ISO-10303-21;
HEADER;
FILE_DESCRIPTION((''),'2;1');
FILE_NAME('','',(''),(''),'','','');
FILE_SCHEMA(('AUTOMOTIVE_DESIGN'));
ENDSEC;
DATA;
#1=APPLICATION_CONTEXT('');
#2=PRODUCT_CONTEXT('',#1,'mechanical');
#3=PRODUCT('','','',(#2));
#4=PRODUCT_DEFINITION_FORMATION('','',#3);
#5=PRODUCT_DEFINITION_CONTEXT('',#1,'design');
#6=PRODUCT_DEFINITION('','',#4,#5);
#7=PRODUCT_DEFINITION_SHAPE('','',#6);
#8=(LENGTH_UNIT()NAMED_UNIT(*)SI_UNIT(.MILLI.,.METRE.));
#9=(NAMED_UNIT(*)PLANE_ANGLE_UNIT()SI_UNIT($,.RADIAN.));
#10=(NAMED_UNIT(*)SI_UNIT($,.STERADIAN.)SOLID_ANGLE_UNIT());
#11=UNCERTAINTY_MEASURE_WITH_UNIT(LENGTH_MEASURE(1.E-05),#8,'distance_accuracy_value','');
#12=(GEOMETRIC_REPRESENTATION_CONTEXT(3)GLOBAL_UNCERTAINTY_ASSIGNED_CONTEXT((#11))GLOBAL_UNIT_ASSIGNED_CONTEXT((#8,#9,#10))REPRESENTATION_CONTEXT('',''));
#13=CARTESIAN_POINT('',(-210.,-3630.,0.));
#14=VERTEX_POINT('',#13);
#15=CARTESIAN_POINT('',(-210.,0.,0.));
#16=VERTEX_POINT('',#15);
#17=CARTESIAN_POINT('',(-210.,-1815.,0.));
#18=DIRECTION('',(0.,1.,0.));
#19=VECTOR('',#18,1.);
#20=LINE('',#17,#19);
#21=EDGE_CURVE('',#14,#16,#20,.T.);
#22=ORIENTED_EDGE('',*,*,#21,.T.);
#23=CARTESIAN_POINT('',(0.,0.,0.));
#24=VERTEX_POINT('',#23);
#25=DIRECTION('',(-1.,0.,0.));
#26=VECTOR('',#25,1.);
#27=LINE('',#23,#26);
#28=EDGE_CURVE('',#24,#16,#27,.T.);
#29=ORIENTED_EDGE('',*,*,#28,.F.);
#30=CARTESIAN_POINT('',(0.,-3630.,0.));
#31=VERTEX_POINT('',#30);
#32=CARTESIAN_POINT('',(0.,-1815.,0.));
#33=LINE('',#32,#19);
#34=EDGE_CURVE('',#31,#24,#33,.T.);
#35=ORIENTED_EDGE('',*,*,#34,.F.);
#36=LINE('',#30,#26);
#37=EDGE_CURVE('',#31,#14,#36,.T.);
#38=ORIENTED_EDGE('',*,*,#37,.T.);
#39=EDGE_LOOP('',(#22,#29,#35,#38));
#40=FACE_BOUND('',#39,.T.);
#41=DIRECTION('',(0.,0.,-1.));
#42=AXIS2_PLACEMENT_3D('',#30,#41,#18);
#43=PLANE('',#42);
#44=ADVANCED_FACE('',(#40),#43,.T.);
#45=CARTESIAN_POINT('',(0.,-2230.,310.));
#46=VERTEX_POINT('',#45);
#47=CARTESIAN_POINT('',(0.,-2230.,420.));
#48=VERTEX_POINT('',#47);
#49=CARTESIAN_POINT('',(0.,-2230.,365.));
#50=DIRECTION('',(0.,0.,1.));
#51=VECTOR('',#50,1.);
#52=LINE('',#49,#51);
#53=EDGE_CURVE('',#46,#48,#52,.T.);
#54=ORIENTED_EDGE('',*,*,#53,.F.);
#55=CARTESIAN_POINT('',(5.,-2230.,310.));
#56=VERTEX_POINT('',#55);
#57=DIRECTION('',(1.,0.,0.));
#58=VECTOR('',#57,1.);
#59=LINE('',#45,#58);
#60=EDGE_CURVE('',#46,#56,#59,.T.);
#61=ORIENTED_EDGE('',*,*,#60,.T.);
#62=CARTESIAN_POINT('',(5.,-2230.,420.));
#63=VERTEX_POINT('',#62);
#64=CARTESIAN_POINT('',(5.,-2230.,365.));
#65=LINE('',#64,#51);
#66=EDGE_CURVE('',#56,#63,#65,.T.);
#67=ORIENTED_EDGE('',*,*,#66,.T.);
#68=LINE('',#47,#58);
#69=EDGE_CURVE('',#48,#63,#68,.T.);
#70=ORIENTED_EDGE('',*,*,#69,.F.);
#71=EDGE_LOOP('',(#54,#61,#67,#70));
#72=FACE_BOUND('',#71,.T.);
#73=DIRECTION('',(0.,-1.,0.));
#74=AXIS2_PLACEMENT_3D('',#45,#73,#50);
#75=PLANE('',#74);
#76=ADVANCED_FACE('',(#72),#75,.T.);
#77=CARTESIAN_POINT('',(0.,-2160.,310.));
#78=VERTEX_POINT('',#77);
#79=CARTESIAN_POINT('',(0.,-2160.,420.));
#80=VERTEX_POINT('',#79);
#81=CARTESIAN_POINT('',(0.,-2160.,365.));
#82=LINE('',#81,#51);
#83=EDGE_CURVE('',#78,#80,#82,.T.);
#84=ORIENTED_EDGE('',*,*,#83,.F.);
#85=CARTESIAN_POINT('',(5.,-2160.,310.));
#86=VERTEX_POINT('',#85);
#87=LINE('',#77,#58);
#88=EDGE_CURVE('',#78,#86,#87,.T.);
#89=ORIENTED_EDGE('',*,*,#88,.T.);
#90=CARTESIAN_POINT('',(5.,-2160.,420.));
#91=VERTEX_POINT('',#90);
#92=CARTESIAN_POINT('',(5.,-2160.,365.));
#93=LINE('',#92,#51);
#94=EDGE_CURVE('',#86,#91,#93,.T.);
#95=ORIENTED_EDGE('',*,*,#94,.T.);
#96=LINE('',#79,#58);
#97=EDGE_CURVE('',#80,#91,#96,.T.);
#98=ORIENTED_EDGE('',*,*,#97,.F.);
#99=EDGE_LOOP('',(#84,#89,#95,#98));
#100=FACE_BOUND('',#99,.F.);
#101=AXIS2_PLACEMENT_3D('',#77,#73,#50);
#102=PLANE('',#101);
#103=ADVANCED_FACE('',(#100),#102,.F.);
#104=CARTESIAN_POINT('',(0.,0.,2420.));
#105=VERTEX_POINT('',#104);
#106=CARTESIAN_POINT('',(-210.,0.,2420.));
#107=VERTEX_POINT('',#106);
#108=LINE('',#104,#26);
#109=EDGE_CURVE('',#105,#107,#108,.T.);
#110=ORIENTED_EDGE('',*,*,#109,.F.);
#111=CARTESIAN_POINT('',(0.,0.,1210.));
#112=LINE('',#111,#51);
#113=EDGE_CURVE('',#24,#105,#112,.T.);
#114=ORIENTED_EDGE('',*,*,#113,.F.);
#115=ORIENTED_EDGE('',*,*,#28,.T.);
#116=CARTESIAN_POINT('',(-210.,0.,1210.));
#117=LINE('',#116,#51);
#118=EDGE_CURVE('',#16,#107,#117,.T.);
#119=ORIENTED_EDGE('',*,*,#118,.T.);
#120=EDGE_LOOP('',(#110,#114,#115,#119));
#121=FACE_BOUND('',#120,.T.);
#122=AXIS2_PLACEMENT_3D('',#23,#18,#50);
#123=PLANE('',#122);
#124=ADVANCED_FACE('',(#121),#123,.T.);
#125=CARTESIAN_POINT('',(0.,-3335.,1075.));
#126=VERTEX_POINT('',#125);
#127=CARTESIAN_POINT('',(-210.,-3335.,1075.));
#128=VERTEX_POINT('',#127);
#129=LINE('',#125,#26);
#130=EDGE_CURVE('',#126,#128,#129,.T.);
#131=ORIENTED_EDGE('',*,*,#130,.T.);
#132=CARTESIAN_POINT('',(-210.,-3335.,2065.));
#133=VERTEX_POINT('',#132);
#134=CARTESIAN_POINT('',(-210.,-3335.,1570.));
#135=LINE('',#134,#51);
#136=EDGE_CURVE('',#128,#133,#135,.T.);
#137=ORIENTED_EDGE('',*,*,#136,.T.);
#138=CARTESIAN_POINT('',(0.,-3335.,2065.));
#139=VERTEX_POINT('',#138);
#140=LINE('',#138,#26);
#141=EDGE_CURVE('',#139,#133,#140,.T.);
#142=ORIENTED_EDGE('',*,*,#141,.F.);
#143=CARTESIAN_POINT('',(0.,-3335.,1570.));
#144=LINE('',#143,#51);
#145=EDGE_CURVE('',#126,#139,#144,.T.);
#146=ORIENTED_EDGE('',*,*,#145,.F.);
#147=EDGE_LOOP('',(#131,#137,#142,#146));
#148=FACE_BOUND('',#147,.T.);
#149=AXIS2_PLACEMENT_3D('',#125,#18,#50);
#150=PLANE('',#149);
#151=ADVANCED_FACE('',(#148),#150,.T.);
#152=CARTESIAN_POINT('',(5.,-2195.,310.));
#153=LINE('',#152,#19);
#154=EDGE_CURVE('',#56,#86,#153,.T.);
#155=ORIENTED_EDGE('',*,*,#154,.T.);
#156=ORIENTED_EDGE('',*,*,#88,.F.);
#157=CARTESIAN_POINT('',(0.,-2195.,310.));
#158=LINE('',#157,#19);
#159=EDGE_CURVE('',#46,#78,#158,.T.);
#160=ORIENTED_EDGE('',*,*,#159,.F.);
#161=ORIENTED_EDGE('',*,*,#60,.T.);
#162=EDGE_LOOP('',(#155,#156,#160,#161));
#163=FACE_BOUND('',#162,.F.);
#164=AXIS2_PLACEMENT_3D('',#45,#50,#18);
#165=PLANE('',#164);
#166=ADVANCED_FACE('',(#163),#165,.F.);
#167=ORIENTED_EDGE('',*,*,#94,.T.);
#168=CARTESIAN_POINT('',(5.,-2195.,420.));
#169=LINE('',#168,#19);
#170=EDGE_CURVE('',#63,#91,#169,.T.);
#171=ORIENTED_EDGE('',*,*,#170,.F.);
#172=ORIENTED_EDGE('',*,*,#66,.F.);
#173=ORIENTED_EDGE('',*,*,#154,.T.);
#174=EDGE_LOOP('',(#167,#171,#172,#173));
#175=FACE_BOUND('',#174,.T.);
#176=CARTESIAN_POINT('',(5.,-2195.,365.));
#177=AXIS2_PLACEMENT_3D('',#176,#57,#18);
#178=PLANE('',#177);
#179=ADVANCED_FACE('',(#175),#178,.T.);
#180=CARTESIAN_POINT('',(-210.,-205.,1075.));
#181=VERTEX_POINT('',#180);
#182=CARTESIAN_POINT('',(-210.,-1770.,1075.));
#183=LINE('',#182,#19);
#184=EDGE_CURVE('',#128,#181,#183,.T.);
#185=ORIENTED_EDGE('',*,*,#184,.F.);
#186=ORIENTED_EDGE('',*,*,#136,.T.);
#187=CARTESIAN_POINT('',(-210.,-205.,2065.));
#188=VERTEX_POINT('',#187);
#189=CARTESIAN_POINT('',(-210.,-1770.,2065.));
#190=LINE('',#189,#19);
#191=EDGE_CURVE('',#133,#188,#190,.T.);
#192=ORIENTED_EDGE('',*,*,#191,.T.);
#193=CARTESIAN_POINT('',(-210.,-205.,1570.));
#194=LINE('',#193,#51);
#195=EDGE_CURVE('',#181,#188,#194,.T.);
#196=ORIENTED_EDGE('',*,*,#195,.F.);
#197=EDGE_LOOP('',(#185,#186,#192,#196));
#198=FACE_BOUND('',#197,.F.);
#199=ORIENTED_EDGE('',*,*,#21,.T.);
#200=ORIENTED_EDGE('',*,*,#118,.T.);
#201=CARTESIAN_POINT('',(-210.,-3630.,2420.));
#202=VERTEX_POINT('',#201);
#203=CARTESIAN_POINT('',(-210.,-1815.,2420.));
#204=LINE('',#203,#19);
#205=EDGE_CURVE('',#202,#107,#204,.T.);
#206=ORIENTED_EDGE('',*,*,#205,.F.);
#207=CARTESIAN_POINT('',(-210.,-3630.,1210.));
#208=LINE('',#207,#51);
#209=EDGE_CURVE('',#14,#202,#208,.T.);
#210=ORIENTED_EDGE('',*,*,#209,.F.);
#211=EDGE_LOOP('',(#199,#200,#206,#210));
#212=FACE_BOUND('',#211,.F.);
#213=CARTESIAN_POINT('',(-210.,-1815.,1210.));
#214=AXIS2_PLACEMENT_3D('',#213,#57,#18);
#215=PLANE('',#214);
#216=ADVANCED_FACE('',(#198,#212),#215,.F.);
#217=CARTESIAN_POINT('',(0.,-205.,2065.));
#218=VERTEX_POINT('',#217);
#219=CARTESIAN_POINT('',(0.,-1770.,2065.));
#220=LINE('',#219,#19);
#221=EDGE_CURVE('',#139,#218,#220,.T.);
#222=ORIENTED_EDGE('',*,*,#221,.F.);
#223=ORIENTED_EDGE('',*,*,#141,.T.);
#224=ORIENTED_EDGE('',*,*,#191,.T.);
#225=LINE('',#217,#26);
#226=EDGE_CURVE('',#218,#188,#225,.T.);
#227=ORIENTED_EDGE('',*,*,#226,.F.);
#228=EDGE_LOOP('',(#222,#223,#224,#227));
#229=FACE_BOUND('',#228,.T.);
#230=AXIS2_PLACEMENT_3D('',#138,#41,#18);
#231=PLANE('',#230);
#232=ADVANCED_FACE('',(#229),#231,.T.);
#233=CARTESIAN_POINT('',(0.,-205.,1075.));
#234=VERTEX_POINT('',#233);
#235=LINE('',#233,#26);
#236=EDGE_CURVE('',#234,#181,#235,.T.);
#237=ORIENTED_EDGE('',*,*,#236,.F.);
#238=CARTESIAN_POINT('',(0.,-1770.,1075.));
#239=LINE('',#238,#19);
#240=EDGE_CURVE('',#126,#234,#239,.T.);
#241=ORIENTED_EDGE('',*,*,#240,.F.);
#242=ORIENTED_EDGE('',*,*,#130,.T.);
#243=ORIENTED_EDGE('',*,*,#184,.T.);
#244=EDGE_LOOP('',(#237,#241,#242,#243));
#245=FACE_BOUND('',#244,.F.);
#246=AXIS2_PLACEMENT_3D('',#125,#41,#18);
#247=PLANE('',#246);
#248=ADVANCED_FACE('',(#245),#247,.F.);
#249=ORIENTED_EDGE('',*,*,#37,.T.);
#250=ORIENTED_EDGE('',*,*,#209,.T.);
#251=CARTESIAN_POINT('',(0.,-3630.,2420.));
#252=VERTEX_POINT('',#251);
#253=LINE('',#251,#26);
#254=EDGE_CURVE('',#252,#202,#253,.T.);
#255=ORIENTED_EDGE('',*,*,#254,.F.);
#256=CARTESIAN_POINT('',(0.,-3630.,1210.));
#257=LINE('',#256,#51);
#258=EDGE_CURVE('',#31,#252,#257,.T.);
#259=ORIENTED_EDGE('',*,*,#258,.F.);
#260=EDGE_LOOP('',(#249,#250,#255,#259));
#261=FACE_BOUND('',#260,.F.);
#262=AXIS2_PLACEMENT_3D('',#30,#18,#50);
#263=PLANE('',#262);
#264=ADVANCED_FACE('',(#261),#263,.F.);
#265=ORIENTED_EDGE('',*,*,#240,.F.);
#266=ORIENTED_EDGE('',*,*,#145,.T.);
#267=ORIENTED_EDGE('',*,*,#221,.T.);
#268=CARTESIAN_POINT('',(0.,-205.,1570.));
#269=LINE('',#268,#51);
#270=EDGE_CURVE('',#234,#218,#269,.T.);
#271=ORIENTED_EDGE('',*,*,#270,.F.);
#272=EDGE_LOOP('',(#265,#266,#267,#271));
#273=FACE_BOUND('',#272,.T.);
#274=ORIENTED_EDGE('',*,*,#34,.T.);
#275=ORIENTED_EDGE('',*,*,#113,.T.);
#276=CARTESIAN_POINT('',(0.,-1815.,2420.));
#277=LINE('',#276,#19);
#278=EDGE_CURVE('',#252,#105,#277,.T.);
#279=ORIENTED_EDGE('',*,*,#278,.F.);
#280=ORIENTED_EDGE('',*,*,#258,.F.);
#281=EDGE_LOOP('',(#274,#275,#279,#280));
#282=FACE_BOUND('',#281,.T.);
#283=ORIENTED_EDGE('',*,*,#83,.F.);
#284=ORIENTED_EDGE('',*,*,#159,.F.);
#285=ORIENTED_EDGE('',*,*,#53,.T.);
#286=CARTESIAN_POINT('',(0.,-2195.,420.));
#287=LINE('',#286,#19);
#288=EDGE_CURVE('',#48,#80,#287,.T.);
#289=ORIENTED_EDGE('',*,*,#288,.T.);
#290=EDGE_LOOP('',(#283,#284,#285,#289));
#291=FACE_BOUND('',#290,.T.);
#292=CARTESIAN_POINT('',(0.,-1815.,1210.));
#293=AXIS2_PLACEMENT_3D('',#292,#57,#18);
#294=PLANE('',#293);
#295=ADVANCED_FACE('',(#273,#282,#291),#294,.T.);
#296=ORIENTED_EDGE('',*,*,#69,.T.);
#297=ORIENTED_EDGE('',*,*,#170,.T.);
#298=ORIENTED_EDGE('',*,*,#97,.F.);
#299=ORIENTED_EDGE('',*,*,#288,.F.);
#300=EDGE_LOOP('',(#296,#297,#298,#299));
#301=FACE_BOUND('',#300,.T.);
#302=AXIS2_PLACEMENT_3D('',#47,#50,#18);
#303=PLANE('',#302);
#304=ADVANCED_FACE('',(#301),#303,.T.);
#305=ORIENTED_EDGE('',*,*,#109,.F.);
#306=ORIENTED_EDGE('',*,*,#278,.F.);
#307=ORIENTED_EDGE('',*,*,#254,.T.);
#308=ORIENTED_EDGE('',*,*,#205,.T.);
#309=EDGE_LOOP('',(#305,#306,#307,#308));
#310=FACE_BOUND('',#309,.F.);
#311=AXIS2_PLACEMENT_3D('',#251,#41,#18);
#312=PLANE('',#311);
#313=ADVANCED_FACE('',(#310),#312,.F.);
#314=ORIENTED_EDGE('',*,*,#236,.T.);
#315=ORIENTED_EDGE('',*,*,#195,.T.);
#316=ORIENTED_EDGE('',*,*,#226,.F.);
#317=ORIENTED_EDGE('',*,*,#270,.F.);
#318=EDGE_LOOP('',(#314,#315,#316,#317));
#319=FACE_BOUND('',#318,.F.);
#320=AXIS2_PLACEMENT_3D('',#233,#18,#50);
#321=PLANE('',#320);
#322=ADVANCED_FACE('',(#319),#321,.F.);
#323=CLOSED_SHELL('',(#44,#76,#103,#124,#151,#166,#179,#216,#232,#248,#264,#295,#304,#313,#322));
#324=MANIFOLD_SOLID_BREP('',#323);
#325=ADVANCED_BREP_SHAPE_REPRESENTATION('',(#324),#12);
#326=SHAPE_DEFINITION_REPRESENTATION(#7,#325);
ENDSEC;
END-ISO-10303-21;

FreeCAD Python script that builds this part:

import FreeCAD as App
import Part
import Sketcher
Q = App.Units.Quantity


def add_polygon(sketch, points):
    """Adds a closed chain of lines whose ends are joined by coincident constraints."""
    first, n = sketch.GeometryCount, len(points)
    for a, b in zip(points, points[1:] + points[:1]):
        sketch.addGeometry(Part.LineSegment(App.Vector(*a, 0), App.Vector(*b, 0)), False)
    for i in range(n):
        sketch.addConstraint(Sketcher.Constraint("Coincident", first + i, 2, first + (i + 1) % n, 1))

doc = App.newDocument("Part")
body = doc.addObject("PartDesign::Body", "Body")

# Sketch on YZ plane
sketch1 = body.newObject("Sketcher::SketchObject", "Sketch")
sketch1.AttachmentSupport = (doc.getObject("YZ_Plane"), [""])
sketch1.MapMode = "FlatFace"
add_polygon(sketch1, [(-3630, 2420), (-3630, 0), (0, 0), (0, 2420)])  # lines 0-3
add_polygon(sketch1, [(-205, 1075), (-3335, 1075), (-3335, 2065), (-205, 2065)])  # lines 4-7
sketch1.addConstraint([
    Sketcher.Constraint("Vertical", 0),
    Sketcher.Constraint("Horizontal", 1),
    Sketcher.Constraint("Vertical", 2),
    Sketcher.Constraint("Horizontal", 3),
    Sketcher.Constraint("Horizontal", 4),
    Sketcher.Constraint("Vertical", 5),
    Sketcher.Constraint("Horizontal", 6),
    Sketcher.Constraint("Vertical", 7),
    Sketcher.Constraint("Coincident", 1, 2, -1, 1),
    Sketcher.Constraint("DistanceX", 1, 1, 1, 2, Q("3630 mm")),
    Sketcher.Constraint("DistanceX", 4, 2, 4, 1, Q("3130 mm")),
    Sketcher.Constraint("DistanceY", 0, 2, 0, 1, Q("2420 mm")),
    Sketcher.Constraint("DistanceY", 5, 1, 5, 2, Q("990 mm")),
    Sketcher.Constraint("DistanceX", 4, 2, -1, 1, Q("3335 mm")),
    Sketcher.Constraint("DistanceY", -1, 1, 4, 2, Q("1075 mm")),
])
pad1 = body.newObject("PartDesign::Pad", "Pad")
pad1.Profile = sketch1
pad1.Length = 210
pad1.Reversed = True

# Sketch on YZ plane
sketch2 = body.newObject("Sketcher::SketchObject", "Sketch001")
sketch2.AttachmentSupport = (doc.getObject("YZ_Plane"), [""])
sketch2.MapMode = "FlatFace"
add_polygon(sketch2, [(-2230, 420), (-2230, 310), (-2160, 310), (-2160, 420)])  # lines 0-3
sketch2.addConstraint([
    Sketcher.Constraint("Vertical", 0),
    Sketcher.Constraint("Horizontal", 1),
    Sketcher.Constraint("Vertical", 2),
    Sketcher.Constraint("Horizontal", 3),
    Sketcher.Constraint("DistanceX", 1, 1, 1, 2, Q("70 mm")),
    Sketcher.Constraint("DistanceY", 0, 2, 0, 1, Q("110 mm")),
    Sketcher.Constraint("DistanceX", 0, 2, -1, 1, Q("2230 mm")),
    Sketcher.Constraint("DistanceY", -1, 1, 0, 2, Q("310 mm")),
])
pad2 = body.newObject("PartDesign::Pad", "Pad001")
pad2.Profile = sketch2
pad2.Length = 5

doc.recompute()
